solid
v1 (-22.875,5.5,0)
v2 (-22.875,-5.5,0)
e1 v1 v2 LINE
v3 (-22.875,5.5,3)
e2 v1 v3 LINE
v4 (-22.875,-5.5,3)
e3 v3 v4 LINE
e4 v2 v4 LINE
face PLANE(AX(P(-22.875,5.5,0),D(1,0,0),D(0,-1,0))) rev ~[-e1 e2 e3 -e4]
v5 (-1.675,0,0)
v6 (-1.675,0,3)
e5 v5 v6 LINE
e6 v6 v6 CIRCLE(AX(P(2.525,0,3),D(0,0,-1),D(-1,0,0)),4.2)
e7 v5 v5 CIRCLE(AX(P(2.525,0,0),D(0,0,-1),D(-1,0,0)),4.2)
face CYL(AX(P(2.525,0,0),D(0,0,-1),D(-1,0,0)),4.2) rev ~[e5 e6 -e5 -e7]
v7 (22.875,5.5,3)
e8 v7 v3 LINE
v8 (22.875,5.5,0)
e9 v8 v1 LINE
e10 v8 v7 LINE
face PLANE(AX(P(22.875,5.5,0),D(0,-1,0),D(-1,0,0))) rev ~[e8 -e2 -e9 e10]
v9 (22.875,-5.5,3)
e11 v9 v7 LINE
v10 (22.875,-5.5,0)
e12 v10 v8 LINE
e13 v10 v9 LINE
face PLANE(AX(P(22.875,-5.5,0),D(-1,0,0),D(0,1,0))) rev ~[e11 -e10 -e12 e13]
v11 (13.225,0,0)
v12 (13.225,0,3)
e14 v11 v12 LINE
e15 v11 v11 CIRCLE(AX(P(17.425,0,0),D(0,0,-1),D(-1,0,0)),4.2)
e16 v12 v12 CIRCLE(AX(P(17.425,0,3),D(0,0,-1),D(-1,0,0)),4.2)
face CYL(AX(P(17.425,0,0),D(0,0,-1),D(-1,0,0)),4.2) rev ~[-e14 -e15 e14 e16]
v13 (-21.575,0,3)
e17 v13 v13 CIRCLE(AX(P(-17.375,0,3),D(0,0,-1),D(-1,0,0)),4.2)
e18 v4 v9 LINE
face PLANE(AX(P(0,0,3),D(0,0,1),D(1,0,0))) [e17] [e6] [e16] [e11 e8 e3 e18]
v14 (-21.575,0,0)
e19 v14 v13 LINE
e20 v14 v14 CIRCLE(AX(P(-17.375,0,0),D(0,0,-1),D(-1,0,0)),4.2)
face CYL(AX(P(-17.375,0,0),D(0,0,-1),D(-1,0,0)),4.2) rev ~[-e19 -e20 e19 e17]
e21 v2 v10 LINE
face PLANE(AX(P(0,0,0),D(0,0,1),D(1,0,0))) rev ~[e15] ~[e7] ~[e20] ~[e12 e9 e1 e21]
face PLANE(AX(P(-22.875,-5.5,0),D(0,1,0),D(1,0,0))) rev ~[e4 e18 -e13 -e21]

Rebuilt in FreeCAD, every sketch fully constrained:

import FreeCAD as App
import Part
import Sketcher

doc = App.newDocument("Part")
body = doc.addObject("PartDesign::Body", "Body")

# Sketch on XY plane
sketch1 = doc.addObject("Sketcher::SketchObject", "Sketch")
body.addObject(sketch1)
sketch1.AttachmentSupport = (doc.XY_Plane, [""])
sketch1.MapMode = "FlatFace"
sketch1.addGeometry(Part.LineSegment(App.Vector(22.875, -5.5, 0), App.Vector(22.875, 5.5, 0)), False)
sketch1.addGeometry(Part.LineSegment(App.Vector(22.875, 5.5, 0), App.Vector(-22.875, 5.5, 0)), False)
sketch1.addGeometry(Part.LineSegment(App.Vector(-22.875, 5.5, 0), App.Vector(-22.875, -5.5, 0)), False)
sketch1.addGeometry(Part.LineSegment(App.Vector(-22.875, -5.5, 0), App.Vector(22.875, -5.5, 0)), False)
sketch1.addGeometry(Part.Circle(App.Vector(-17.375, 0, 0), App.Vector(0, 0, 1), 4.2), False)
sketch1.addGeometry(Part.Circle(App.Vector(2.525, 0, 0), App.Vector(0, 0, 1), 4.2), False)
sketch1.addGeometry(Part.Circle(App.Vector(17.425, 0, 0), App.Vector(0, 0, 1), 4.2), False)
sketch1.addConstraint(Sketcher.Constraint("Coincident", 0, 2, 1, 1))
sketch1.addConstraint(Sketcher.Constraint("Coincident", 1, 2, 2, 1))
sketch1.addConstraint(Sketcher.Constraint("Coincident", 2, 2, 3, 1))
sketch1.addConstraint(Sketcher.Constraint("Coincident", 3, 2, 0, 1))
sketch1.addConstraint(Sketcher.Constraint("Vertical", 0))
sketch1.addConstraint(Sketcher.Constraint("Horizontal", 1))
sketch1.addConstraint(Sketcher.Constraint("Vertical", 2))
sketch1.addConstraint(Sketcher.Constraint("Horizontal", 3))
sketch1.addConstraint(Sketcher.Constraint("Equal", 4, 5))
sketch1.addConstraint(Sketcher.Constraint("Equal", 5, 6))
sketch1.addConstraint(Sketcher.Constraint("Symmetric", 0, 2, 2, 2, -1, 1))
sketch1.addConstraint(Sketcher.Constraint("PointOnObject", 4, 3, -1))
sketch1.addConstraint(Sketcher.Constraint("PointOnObject", 5, 3, -1))
sketch1.addConstraint(Sketcher.Constraint("PointOnObject", 6, 3, -1))
sketch1.addConstraint(Sketcher.Constraint("Diameter", 4, 8.4))
sketch1.addConstraint(Sketcher.Constraint("DistanceY", 0, 1, 0, 2, 11.0))
sketch1.addConstraint(Sketcher.Constraint("DistanceX", 1, 2, 1, 1, 45.75))
sketch1.addConstraint(Sketcher.Constraint("DistanceX", 4, 3, 5, 3, 19.9))
sketch1.addConstraint(Sketcher.Constraint("DistanceX", 5, 3, 6, 3, 14.9))
sketch1.addConstraint(Sketcher.Constraint("DistanceX", 1, 2, 4, 3, 5.5))
pad1 = doc.addObject("PartDesign::Pad", "Pad")
body.addObject(pad1)
pad1.Profile = sketch1
pad1.Length = 3

doc.recompute()
